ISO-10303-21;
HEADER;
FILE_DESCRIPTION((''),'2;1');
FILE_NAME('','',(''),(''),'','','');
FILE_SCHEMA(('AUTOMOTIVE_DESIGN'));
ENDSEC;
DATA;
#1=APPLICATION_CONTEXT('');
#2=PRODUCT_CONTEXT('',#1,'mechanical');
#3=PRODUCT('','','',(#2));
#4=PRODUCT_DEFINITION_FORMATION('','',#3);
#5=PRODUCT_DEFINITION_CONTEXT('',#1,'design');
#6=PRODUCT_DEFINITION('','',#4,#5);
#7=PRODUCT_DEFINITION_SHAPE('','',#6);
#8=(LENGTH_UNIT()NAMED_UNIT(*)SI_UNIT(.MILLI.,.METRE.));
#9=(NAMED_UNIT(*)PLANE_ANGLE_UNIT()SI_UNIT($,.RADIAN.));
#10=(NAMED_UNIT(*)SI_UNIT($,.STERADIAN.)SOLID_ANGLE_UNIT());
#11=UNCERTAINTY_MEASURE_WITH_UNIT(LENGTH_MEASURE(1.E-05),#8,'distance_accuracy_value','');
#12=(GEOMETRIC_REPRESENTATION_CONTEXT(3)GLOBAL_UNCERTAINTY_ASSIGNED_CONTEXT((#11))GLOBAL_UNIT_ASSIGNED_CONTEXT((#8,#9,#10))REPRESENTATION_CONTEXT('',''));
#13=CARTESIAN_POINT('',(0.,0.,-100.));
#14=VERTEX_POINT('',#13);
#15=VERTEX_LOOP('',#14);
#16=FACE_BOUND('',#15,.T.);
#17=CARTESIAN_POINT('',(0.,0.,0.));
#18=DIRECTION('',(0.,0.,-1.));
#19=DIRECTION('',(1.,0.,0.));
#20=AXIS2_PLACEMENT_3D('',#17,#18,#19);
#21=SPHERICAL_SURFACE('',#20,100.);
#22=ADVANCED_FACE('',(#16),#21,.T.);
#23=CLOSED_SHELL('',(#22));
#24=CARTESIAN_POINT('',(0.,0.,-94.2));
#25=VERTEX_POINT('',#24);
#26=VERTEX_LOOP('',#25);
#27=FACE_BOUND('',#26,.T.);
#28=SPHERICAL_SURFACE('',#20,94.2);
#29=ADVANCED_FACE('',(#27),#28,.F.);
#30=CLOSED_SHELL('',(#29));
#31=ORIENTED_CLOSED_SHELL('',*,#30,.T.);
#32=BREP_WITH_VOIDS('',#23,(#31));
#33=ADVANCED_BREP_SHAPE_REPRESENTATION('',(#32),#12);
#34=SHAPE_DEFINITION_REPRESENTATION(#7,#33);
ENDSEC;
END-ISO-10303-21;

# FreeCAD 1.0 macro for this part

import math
import FreeCAD as App
import Part
import Sketcher

V = App.Vector
Q = App.Units.Quantity

doc = App.newDocument("Part")
params = doc.addObject("Spreadsheet::Sheet", "Params")
for row, (alias, value) in enumerate([
    ("sketch1_radius", "100 mm"),
    ("sketch1_radius2", "94.2 mm"),
    ("revolution_angle", "360 deg"),
], start=1):
    params.set(f"A{row}", alias)
    params.set(f"B{row}", "=" + value)
    params.setAlias(f"B{row}", alias)

body = doc.addObject("PartDesign::Body", "Body")

# Sketch on XZ plane
sketch1 = doc.addObject("Sketcher::SketchObject", "Sketch")
body.addObject(sketch1)
sketch1.AttachmentSupport = (doc.XZ_Plane, [""])
sketch1.MapMode = "FlatFace"
sketch1.addGeometry([
    Part.LineSegment(V(0, -100, 0), V(0, -94.2, 0)),
    Part.ArcOfCircle(Part.Circle(V(0, 0, 0), V(0, 0, 1), 94.2), math.radians(-90), math.radians(90)),
    Part.LineSegment(V(0, 94.2, 0), V(0, 100, 0)),
    Part.ArcOfCircle(Part.Circle(V(0, 0, 0), V(0, 0, 1), 100), math.radians(-90), math.radians(90)),
], False)
sketch1.addConstraint([
    Sketcher.Constraint("Coincident", 0, 2, 1, 1),
    Sketcher.Constraint("Coincident", 1, 2, 2, 1),
    Sketcher.Constraint("Coincident", 2, 2, 3, 2),
    Sketcher.Constraint("Coincident", 3, 1, 0, 1),
    Sketcher.Constraint("Vertical", 0),
    Sketcher.Constraint("Vertical", 2),
    Sketcher.Constraint("Coincident", 1, 3, -1, 1),
    Sketcher.Constraint("Coincident", 3, 3, -1, 1),
    Sketcher.Constraint("PointOnObject", 0, 2, -2),
    Sketcher.Constraint("PointOnObject", 1, 2, -2),
    Sketcher.Constraint("Radius", 3, Q("100 mm")),
    Sketcher.Constraint("Radius", 1, Q("94.2 mm")),
])
sketch1.setExpression("Constraints[10]", "Params.sketch1_radius")
sketch1.setExpression("Constraints[11]", "Params.sketch1_radius2")
revolution = doc.addObject("PartDesign::Revolution", "Revolution")
body.addObject(revolution)
revolution.Profile = sketch1
revolution.ReferenceAxis = (sketch1, ["V_Axis"])
revolution.setExpression("Angle", "Params.revolution_angle")

doc.recompute()
